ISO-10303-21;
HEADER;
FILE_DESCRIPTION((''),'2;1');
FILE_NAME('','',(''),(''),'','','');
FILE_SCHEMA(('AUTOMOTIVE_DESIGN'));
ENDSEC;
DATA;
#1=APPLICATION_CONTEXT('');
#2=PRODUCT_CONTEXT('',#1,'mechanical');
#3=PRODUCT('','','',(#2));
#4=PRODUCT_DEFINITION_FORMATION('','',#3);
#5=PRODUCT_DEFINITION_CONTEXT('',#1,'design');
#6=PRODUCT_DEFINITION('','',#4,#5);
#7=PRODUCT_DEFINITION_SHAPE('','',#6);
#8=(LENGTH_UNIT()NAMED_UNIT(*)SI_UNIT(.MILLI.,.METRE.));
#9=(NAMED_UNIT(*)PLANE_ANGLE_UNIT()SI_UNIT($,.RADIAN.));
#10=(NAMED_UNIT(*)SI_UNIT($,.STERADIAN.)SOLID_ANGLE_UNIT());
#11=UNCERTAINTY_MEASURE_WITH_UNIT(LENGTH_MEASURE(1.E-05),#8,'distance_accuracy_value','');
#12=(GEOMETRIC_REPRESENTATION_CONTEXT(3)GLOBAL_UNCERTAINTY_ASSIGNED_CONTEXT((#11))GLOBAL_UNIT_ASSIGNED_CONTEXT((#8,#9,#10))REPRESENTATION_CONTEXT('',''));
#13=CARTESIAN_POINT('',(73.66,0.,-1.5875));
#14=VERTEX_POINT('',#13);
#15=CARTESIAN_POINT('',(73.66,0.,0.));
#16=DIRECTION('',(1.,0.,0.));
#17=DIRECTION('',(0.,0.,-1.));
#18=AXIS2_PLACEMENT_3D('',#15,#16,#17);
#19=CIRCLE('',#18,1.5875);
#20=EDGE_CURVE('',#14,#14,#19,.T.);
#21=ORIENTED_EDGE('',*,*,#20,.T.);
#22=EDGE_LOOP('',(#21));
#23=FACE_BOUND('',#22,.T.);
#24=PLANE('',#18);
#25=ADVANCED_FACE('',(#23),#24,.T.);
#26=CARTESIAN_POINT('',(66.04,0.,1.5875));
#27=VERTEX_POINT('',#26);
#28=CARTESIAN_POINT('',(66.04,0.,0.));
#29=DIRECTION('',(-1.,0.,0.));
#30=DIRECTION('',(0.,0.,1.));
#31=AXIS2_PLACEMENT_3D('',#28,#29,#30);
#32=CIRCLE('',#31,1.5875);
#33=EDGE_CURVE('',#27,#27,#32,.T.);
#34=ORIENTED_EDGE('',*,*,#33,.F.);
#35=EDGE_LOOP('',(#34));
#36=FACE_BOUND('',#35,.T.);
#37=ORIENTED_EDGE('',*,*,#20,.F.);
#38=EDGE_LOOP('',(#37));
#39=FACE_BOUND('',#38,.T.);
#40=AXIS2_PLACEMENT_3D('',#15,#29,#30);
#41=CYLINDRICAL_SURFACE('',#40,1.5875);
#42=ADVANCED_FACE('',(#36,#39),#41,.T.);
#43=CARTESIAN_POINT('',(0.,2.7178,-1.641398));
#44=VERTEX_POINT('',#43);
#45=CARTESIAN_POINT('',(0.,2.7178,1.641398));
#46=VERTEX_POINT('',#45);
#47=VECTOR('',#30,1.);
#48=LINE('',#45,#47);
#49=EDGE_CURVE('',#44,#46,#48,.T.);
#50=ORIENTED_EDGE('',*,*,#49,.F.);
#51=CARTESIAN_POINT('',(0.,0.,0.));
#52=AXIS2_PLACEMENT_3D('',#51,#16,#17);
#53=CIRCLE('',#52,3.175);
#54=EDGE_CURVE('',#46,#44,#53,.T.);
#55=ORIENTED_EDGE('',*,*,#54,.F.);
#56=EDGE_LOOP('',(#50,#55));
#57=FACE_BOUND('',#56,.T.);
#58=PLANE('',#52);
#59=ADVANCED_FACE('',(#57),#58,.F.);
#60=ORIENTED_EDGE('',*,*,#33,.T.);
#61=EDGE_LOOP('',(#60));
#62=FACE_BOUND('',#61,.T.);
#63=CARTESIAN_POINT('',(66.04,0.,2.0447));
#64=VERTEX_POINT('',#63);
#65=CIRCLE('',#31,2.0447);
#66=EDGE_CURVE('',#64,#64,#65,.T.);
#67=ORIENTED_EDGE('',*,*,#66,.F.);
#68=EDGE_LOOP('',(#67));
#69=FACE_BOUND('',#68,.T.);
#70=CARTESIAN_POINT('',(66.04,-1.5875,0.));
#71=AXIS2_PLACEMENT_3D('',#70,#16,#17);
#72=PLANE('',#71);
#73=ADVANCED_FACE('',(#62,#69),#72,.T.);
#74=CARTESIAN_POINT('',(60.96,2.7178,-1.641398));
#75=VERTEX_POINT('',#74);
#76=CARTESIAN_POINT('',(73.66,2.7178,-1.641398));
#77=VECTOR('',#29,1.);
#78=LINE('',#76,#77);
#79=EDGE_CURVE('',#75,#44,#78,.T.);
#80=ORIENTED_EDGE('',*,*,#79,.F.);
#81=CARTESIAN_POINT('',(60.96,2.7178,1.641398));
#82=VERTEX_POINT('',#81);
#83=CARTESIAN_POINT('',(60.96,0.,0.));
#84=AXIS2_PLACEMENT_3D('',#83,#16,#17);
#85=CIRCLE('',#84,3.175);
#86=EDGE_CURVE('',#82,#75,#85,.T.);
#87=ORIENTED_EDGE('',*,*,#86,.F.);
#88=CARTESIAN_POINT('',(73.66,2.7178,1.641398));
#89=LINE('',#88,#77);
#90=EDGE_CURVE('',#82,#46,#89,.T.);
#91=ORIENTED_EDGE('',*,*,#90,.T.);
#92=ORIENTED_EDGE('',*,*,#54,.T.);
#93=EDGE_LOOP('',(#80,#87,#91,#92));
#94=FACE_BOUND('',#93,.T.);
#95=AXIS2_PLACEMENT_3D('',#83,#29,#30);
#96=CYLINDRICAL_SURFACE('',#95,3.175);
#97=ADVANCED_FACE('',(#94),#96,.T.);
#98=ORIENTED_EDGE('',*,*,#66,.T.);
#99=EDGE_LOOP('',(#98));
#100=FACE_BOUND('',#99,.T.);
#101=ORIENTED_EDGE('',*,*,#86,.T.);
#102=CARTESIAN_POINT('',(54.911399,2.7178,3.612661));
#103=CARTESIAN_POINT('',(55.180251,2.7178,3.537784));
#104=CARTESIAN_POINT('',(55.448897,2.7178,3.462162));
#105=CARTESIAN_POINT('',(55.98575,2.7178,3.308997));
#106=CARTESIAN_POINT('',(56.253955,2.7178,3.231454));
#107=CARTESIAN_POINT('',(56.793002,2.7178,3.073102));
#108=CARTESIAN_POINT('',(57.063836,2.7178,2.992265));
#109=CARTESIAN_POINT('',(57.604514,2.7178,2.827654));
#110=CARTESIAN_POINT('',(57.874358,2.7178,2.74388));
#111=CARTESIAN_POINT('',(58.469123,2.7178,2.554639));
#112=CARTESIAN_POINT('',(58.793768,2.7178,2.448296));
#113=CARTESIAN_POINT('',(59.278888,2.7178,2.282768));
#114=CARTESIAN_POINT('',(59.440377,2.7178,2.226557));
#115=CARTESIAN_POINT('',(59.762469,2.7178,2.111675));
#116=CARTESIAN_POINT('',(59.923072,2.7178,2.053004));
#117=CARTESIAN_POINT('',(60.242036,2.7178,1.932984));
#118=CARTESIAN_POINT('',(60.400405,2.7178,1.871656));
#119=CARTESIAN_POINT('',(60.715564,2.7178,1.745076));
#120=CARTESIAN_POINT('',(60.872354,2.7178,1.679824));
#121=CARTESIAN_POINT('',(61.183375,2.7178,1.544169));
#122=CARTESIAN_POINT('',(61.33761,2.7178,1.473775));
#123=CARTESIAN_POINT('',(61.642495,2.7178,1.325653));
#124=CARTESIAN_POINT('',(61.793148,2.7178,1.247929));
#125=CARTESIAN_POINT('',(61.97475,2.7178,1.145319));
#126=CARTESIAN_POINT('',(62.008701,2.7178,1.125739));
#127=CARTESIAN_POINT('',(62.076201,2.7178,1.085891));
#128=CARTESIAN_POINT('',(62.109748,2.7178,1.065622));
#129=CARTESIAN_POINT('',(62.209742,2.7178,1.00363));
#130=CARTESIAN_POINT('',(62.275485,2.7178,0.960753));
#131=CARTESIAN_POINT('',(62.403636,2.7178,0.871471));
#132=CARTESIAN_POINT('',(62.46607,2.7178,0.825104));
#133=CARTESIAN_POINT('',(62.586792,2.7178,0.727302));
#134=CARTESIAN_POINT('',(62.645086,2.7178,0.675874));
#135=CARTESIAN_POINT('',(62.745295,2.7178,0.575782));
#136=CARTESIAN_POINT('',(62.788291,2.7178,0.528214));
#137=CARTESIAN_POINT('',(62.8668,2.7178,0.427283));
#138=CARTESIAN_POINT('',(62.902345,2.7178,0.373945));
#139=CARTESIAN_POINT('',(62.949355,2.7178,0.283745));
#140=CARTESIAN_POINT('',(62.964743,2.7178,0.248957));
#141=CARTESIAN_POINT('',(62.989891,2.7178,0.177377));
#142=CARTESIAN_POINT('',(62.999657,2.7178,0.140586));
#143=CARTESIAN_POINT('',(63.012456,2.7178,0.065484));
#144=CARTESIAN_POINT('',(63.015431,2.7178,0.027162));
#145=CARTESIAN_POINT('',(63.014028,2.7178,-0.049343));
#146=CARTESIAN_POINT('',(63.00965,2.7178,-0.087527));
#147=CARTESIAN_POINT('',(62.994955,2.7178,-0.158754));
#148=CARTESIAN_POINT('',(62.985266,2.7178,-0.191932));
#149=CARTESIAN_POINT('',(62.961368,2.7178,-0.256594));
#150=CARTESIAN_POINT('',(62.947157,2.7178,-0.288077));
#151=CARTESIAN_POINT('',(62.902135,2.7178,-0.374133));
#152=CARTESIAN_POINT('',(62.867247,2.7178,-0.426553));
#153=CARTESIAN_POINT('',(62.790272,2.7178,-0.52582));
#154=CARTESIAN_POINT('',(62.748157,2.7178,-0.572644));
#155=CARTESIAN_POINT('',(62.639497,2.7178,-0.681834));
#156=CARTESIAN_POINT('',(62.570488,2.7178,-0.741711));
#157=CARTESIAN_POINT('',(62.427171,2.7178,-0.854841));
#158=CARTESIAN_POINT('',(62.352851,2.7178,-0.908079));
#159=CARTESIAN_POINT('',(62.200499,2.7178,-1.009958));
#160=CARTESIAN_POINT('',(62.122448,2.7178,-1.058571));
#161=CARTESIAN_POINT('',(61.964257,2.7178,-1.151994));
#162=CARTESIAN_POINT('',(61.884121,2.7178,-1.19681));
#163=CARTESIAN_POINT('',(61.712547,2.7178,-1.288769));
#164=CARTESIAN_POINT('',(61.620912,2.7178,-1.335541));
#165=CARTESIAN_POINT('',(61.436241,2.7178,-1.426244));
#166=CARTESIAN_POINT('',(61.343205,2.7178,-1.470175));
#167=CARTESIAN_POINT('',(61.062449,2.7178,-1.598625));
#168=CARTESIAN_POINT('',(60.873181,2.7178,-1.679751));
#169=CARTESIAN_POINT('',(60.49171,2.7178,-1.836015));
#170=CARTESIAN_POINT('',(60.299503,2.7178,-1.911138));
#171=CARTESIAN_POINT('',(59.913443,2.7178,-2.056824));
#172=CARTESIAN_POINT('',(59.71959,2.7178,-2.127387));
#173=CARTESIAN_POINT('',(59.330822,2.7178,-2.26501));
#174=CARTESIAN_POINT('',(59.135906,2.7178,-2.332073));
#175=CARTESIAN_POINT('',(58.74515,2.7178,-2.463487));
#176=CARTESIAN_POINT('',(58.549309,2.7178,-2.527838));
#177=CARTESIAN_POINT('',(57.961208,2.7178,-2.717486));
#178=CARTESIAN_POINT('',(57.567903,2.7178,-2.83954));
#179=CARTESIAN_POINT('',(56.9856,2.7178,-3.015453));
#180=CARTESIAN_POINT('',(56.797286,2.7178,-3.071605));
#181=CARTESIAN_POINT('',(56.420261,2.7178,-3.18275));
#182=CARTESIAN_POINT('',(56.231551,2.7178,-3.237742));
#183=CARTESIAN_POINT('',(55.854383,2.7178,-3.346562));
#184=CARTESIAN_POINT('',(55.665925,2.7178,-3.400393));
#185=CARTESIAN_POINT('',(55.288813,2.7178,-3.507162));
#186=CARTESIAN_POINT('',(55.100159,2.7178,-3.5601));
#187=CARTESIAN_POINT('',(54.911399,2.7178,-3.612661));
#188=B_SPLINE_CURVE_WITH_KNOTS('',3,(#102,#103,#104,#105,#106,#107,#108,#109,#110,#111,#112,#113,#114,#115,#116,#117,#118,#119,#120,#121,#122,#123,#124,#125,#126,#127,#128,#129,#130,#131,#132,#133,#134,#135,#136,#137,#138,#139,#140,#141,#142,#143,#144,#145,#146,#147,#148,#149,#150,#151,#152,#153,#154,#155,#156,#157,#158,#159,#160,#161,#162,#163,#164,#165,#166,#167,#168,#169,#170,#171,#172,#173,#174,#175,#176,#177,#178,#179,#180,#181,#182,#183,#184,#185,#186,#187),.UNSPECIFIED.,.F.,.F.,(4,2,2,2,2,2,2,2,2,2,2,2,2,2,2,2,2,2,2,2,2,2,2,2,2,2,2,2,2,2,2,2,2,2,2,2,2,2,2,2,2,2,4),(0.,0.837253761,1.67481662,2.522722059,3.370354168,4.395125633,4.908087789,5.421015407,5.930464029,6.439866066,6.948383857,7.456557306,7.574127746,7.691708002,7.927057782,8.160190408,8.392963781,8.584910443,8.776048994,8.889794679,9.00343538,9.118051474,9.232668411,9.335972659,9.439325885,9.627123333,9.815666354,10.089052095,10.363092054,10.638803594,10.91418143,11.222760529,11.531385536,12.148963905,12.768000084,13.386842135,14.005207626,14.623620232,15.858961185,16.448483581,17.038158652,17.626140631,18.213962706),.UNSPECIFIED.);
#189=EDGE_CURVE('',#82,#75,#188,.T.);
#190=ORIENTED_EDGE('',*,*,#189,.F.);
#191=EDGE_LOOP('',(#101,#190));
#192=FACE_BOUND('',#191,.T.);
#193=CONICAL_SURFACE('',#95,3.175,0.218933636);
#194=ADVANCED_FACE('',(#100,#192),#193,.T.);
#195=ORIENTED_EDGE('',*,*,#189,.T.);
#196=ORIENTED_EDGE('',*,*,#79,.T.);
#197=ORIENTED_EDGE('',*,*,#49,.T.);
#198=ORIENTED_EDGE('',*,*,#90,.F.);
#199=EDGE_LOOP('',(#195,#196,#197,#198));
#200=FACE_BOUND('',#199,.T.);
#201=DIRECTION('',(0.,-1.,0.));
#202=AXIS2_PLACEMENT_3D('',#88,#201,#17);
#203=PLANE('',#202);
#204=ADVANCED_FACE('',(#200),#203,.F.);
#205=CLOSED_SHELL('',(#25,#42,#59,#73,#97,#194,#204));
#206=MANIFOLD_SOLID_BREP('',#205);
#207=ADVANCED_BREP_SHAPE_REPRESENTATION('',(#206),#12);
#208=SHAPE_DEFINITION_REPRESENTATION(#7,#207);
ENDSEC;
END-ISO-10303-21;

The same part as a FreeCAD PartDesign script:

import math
import FreeCAD as App
import Part
import Sketcher
Q = App.Units.Quantity

doc = App.newDocument("Part")
body = doc.addObject("PartDesign::Body", "Body")

sketch1 = doc.addObject("Sketcher::SketchObject", "Sketch")
body.addObject(sketch1)
sketch1.AttachmentSupport = (doc.YZ_Plane, [""])
sketch1.MapMode = "FlatFace"
sketch1.addGeometry(Part.Circle(App.Vector(0, 0, 0), App.Vector(0, 0, 1), 3.175), False)
sketch1.addConstraint(Sketcher.Constraint("Coincident", 0, 3, -1, 1))
sketch1.addConstraint(Sketcher.Constraint("Diameter", 0, Q("0.25 in")))
pad1 = doc.addObject("PartDesign::Pad", "Pad")
body.addObject(pad1)
pad1.Profile = sketch1
pad1.Length = Q("2.4 in")

sketch2 = doc.addObject("Sketcher::SketchObject", "Sketch001")
body.addObject(sketch2)
sketch2.AttachmentSupport = (doc.YZ_Plane, [""])
sketch2.MapMode = "FlatFace"
sketch2.AttachmentOffset = App.Placement(App.Vector(0, 0, 2.4 * 25.4), App.Rotation())
sketch2.addGeometry(Part.Circle(App.Vector(0, 0, 0), App.Vector(0, 0, 1), 1.5875), False)
sketch2.addConstraint(Sketcher.Constraint("Coincident", 0, 3, -1, 1))
sketch2.addConstraint(Sketcher.Constraint("Diameter", 0, Q("0.125 in")))
pad2 = doc.addObject("PartDesign::Pad", "Pad001")
body.addObject(pad2)
pad2.Profile = sketch2
pad2.Length = Q("0.5 in")

sketch3 = doc.addObject("Sketcher::SketchObject", "Sketch002")
body.addObject(sketch3)
sketch3.AttachmentSupport = (doc.XY_Plane, [""])
sketch3.MapMode = "FlatFace"
sketch3.addGeometry(Part.LineSegment(App.Vector(66.04, -1.5875, 0), App.Vector(60.96, -1.5875, 0)), False)
sketch3.addGeometry(Part.LineSegment(App.Vector(60.96, -1.5875, 0), App.Vector(60.96, -3.175, 0)), False)
sketch3.addGeometry(Part.LineSegment(App.Vector(60.96, -3.175, 0), App.Vector(66.04, -2.0447, 0)), False)
sketch3.addGeometry(Part.LineSegment(App.Vector(66.04, -2.0447, 0), App.Vector(66.04, -1.5875, 0)), False)
sketch3.addConstraint(Sketcher.Constraint("Coincident", 0, 2, 1, 1))
sketch3.addConstraint(Sketcher.Constraint("Coincident", 1, 2, 2, 1))
sketch3.addConstraint(Sketcher.Constraint("Coincident", 2, 2, 3, 1))
sketch3.addConstraint(Sketcher.Constraint("Coincident", 3, 2, 0, 1))
sketch3.addConstraint(Sketcher.Constraint("Horizontal", 0))
sketch3.addConstraint(Sketcher.Constraint("Vertical", 1))
sketch3.addConstraint(Sketcher.Constraint("Vertical", 3))
sketch3.addConstraint(Sketcher.Constraint("DistanceX", 0, 2, 0, 1, Q("0.2 in")))
sketch3.addConstraint(Sketcher.Constraint("DistanceX", -1, 1, 0, 2, Q("2.4 in")))
sketch3.addConstraint(Sketcher.Constraint("DistanceY", 1, 2, 1, 1, Q("0.0625 in")))
sketch3.addConstraint(Sketcher.Constraint("DistanceY", 3, 1, 3, 2, Q("0.018 in")))
sketch3.addConstraint(Sketcher.Constraint("DistanceY", 0, 2, -1, 1, Q("0.0625 in")))
revolution = doc.addObject("PartDesign::Revolution", "Revolution")
body.addObject(revolution)
revolution.Profile = sketch3
revolution.ReferenceAxis = (sketch3, ["H_Axis"])
revolution.Angle = 360

sketch4 = doc.addObject("Sketcher::SketchObject", "Sketch003")
body.addObject(sketch4)
sketch4.AttachmentSupport = (doc.YZ_Plane, [""])
sketch4.MapMode = "FlatFace"
sketch4.addGeometry(Part.LineSegment(App.Vector(2.7178, -1.641398, 0), App.Vector(2.7178, 1.641398, 0)), False)
sketch4.addGeometry(Part.ArcOfCircle(Part.Circle(App.Vector(0, 0, 0), App.Vector(0, 0, 1), 3.175), math.radians(-31.129613), math.radians(31.129613)), False)
sketch4.addConstraint(Sketcher.Constraint("Coincident", 0, 1, 1, 1))
sketch4.addConstraint(Sketcher.Constraint("Coincident", 1, 2, 0, 2))
sketch4.addConstraint(Sketcher.Constraint("Vertical", 0))
sketch4.addConstraint(Sketcher.Constraint("Coincident", 1, 3, -1, 1))
sketch4.addConstraint(Sketcher.Constraint("Radius", 1, Q("0.125 in")))
sketch4.addConstraint(Sketcher.Constraint("DistanceX", -1, 1, 0, 1, Q("0.107 in")))
pocket1 = doc.addObject("PartDesign::Pocket", "Pocket")
body.addObject(pocket1)
pocket1.Profile = sketch4
pocket1.Type = "ThroughAll"
pocket1.Reversed = True

doc.recompute()
